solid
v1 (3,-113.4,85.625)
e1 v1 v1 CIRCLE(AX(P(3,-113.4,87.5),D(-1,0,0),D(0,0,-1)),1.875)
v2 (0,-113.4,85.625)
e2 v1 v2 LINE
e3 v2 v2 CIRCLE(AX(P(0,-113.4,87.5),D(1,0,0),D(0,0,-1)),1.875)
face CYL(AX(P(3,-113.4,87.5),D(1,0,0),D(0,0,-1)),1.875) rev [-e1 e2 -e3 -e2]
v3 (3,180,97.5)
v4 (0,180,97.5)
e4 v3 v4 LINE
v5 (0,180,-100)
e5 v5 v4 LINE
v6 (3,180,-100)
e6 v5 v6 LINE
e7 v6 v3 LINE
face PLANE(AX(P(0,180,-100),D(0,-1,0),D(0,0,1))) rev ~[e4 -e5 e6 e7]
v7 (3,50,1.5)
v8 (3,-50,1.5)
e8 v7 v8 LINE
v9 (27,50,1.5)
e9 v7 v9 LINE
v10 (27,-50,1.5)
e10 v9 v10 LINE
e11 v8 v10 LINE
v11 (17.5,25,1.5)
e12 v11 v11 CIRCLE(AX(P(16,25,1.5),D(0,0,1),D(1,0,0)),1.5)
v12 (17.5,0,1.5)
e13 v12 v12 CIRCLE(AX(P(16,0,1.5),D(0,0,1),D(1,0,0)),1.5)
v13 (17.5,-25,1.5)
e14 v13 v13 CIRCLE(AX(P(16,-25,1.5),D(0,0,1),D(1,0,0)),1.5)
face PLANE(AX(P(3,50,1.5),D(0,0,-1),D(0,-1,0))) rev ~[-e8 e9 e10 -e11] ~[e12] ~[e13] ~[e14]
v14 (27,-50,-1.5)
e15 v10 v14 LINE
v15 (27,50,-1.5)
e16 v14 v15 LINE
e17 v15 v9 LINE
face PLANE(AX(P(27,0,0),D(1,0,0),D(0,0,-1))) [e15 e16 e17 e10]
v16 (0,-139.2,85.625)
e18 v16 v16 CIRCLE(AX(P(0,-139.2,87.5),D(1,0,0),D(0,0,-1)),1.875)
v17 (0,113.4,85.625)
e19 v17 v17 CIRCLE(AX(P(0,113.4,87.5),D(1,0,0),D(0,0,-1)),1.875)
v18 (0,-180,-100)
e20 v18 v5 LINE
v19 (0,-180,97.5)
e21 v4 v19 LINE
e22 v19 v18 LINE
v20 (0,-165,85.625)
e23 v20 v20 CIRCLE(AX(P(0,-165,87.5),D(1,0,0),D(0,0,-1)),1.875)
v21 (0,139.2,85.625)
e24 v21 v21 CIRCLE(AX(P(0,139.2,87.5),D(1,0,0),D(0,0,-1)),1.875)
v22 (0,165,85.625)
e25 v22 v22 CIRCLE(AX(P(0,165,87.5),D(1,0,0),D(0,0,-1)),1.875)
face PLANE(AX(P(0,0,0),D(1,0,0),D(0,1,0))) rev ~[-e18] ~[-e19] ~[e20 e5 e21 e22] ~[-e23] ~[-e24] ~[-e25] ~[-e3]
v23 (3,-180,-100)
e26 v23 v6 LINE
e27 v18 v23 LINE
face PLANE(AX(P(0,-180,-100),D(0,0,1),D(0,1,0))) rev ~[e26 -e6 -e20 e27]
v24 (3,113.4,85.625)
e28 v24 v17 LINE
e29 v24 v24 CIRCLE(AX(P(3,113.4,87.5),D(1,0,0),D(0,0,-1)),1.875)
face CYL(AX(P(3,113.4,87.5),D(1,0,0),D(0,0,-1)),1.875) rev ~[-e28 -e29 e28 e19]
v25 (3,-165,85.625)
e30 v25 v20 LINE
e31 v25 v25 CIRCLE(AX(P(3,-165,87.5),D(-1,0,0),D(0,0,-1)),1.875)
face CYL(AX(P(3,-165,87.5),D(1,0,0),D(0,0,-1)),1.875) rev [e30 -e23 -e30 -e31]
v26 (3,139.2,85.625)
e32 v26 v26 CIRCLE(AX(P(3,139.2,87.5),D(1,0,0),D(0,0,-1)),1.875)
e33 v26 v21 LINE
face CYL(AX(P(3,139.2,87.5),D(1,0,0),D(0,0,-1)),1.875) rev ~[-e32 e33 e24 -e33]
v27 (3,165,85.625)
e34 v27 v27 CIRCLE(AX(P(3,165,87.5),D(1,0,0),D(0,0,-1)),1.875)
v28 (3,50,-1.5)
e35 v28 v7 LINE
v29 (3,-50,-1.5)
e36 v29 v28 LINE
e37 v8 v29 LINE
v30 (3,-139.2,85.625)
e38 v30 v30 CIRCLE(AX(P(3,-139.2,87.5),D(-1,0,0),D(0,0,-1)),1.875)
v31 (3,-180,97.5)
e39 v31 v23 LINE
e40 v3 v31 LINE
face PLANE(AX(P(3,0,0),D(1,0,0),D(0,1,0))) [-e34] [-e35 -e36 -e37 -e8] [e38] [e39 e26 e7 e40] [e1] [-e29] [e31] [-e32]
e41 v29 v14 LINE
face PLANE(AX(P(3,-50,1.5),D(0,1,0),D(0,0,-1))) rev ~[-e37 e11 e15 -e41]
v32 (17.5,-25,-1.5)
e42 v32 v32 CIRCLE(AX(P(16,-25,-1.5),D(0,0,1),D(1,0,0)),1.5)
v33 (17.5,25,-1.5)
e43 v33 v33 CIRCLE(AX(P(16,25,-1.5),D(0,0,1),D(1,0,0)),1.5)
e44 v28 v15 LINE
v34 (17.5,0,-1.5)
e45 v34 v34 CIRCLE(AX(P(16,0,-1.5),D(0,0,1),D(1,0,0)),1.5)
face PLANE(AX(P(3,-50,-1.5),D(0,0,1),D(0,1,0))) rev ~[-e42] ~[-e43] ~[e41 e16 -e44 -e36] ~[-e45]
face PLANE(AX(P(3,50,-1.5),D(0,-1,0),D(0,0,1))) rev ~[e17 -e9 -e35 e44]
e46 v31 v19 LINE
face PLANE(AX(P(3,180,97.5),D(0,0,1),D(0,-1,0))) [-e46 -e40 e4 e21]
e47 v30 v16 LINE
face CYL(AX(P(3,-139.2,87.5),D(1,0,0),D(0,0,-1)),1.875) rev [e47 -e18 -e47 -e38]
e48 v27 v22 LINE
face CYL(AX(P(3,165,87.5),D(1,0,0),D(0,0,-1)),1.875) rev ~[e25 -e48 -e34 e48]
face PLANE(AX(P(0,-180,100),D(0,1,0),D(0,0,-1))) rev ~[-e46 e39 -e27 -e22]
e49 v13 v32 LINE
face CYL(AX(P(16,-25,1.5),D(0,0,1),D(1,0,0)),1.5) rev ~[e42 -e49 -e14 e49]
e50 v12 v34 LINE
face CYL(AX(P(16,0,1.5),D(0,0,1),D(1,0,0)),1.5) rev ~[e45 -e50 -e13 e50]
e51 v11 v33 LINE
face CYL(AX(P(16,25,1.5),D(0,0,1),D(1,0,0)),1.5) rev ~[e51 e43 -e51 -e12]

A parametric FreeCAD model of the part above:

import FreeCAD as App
import Part
import Sketcher
from FreeCAD import Vector
Q = App.Units.Quantity

doc = App.newDocument("Part")
params = doc.addObject("Spreadsheet::Sheet", "Params")
for row, (alias, value) in enumerate([
    ("sketch1_width", "360 mm"),
    ("sketch1_height", "200 mm"),
    ("pad1_length", "3 mm"),
    ("sketch2_width", "100 mm"),
    ("sketch2_height", "3 mm"),
    ("pad2_length", "24 mm"),
    ("sketch3_diameter", "3 mm"),
    ("pocket1_length", "25 mm"),
    ("sketch4_diameter", "3.75 mm"),
    ("pocket2_length", "10 mm"),
    ("sketch5_height", "2.5 mm"),
    ("sketch5_width", "360 mm"),
    ("pocket3_length", "10 mm"),
], start=1):
    params.set(f"A{row}", alias)
    params.set(f"B{row}", "=" + value)
    params.setAlias(f"B{row}", alias)

body = doc.addObject("PartDesign::Body", "Body")

# Sketch on YZ plane
sketch1 = body.newObject("Sketcher::SketchObject", "Sketch")
sketch1.AttachmentSupport = (doc.getObject("YZ_Plane"), [""])
sketch1.MapMode = "FlatFace"
sketch1.addGeometry([
    Part.LineSegment(Vector(180, -100, 0), Vector(180, 100, 0)),
    Part.LineSegment(Vector(180, 100, 0), Vector(-180, 100, 0)),
    Part.LineSegment(Vector(-180, 100, 0), Vector(-180, -100, 0)),
    Part.LineSegment(Vector(-180, -100, 0), Vector(180, -100, 0)),
], False)
sketch1.addConstraint([
    Sketcher.Constraint("Coincident", 0, 2, 1, 1),
    Sketcher.Constraint("Coincident", 1, 2, 2, 1),
    Sketcher.Constraint("Coincident", 2, 2, 3, 1),
    Sketcher.Constraint("Coincident", 3, 2, 0, 1),
    Sketcher.Constraint("Vertical", 0),
    Sketcher.Constraint("Horizontal", 1),
    Sketcher.Constraint("Vertical", 2),
    Sketcher.Constraint("Horizontal", 3),
    Sketcher.Constraint("Symmetric", 0, 2, 2, 2, -1, 1),
    Sketcher.Constraint("DistanceX", 1, 2, 1, 1, Q("360 mm")),
    Sketcher.Constraint("DistanceY", 0, 1, 0, 2, Q("200 mm")),
])
sketch1.setExpression("Constraints[9]", "Params.sketch1_width")
sketch1.setExpression("Constraints[10]", "Params.sketch1_height")
pad1 = body.newObject("PartDesign::Pad", "Pad")
pad1.Profile = sketch1
pad1.setExpression("Length", "Params.pad1_length")

# Sketch on YZ plane
sketch2 = body.newObject("Sketcher::SketchObject", "Sketch001")
sketch2.AttachmentSupport = (doc.getObject("YZ_Plane"), [""])
sketch2.MapMode = "FlatFace"
sketch2.AttachmentOffset = App.Placement(Vector(0, 0, 3), App.Rotation())
sketch2.addGeometry([
    Part.LineSegment(Vector(-50, -1.5, 0), Vector(50, -1.5, 0)),
    Part.LineSegment(Vector(50, -1.5, 0), Vector(50, 1.5, 0)),
    Part.LineSegment(Vector(50, 1.5, 0), Vector(-50, 1.5, 0)),
    Part.LineSegment(Vector(-50, 1.5, 0), Vector(-50, -1.5, 0)),
], False)
sketch2.addConstraint([
    Sketcher.Constraint("Coincident", 0, 2, 1, 1),
    Sketcher.Constraint("Coincident", 1, 2, 2, 1),
    Sketcher.Constraint("Coincident", 2, 2, 3, 1),
    Sketcher.Constraint("Coincident", 3, 2, 0, 1),
    Sketcher.Constraint("Horizontal", 0),
    Sketcher.Constraint("Vertical", 1),
    Sketcher.Constraint("Horizontal", 2),
    Sketcher.Constraint("Vertical", 3),
    Sketcher.Constraint("Symmetric", 0, 2, 2, 2, -1, 1),
    Sketcher.Constraint("DistanceX", 0, 1, 0, 2, Q("100 mm")),
    Sketcher.Constraint("DistanceY", 1, 1, 1, 2, Q("3 mm")),
])
sketch2.setExpression("Constraints[9]", "Params.sketch2_width")
sketch2.setExpression("Constraints[10]", "Params.sketch2_height")
pad2 = body.newObject("PartDesign::Pad", "Pad001")
pad2.Profile = sketch2
pad2.setExpression("Length", "Params.pad2_length")

# Sketch on XY plane
sketch3 = body.newObject("Sketcher::SketchObject", "Sketch002")
sketch3.AttachmentSupport = (doc.getObject("XY_Plane"), [""])
sketch3.MapMode = "FlatFace"
sketch3.AttachmentOffset = App.Placement(Vector(0, 0, 1.5), App.Rotation())
sketch3.addGeometry([
    Part.Circle(Vector(16, 25, 0), Vector(0, 0, 1), 1.5),
    Part.Circle(Vector(16, 0, 0), Vector(0, 0, 1), 1.5),
    Part.Circle(Vector(16, -25, 0), Vector(0, 0, 1), 1.5),
], False)
sketch3.addConstraint([
    Sketcher.Constraint("Equal", 0, 1),
    Sketcher.Constraint("Equal", 1, 2),
    Sketcher.Constraint("Symmetric", 0, 3, 2, 3, -1),
    Sketcher.Constraint("PointOnObject", 1, 3, -1),
    Sketcher.Constraint("Vertical", 0, 3, 1, 3),
    Sketcher.Constraint("Diameter", 0, Q("3 mm")),
    Sketcher.Constraint("DistanceY", -1, 1, 0, 3, Q("25 mm")),
    Sketcher.Constraint("DistanceX", -1, 1, 0, 3, Q("16 mm")),
])
sketch3.setExpression("Constraints[5]", "Params.sketch3_diameter")
pocket1 = body.newObject("PartDesign::Pocket", "Pocket")
pocket1.Profile = sketch3
pocket1.setExpression("Length", "Params.pocket1_length")

# Sketch on YZ plane
sketch4 = body.newObject("Sketcher::SketchObject", "Sketch003")
sketch4.AttachmentSupport = (doc.getObject("YZ_Plane"), [""])
sketch4.MapMode = "FlatFace"
sketch4.AttachmentOffset = App.Placement(Vector(0, 0, 3), App.Rotation())
sketch4.addGeometry([
    Part.Circle(Vector(165, 87.5, 0), Vector(0, 0, 1), 1.9),
    Part.Circle(Vector(139.2, 87.5, 0), Vector(0, 0, 1), 1.9),
    Part.Circle(Vector(113.4, 87.5, 0), Vector(0, 0, 1), 1.9),
], False)
sketch4.addConstraint([
    Sketcher.Constraint("Equal", 0, 1),
    Sketcher.Constraint("Equal", 1, 2),
    Sketcher.Constraint("Horizontal", 0, 3, 1, 3),
    Sketcher.Constraint("Horizontal", 1, 3, 2, 3),
    Sketcher.Constraint("Diameter", 0, Q("3.75 mm")),
    Sketcher.Constraint("DistanceX", 1, 3, 0, 3, Q("25.8 mm")),
    Sketcher.Constraint("DistanceX", 2, 3, 1, 3, Q("25.8 mm")),
    Sketcher.Constraint("DistanceX", -1, 1, 0, 3, Q("165 mm")),
    Sketcher.Constraint("DistanceY", -1, 1, 0, 3, Q("87.5 mm")),
])
sketch4.setExpression("Constraints[4]", "Params.sketch4_diameter")
pocket2 = body.newObject("PartDesign::Pocket", "Pocket001")
pocket2.Profile = sketch4
pocket2.setExpression("Length", "Params.pocket2_length")
doc.recompute()

mirrored = body.newObject("PartDesign::Mirrored", "Mirrored")
mirrored.Originals = [pocket2]
mirrored.MirrorPlane = (doc.getObject("XZ_Plane"), [""])
body.Tip = mirrored

# Sketch on YZ plane
sketch5 = body.newObject("Sketcher::SketchObject", "Sketch004")
sketch5.AttachmentSupport = (doc.getObject("YZ_Plane"), [""])
sketch5.MapMode = "FlatFace"
sketch5.AttachmentOffset = App.Placement(Vector(0, 0, 3), App.Rotation())
sketch5.addGeometry([
    Part.LineSegment(Vector(-180, 97.5, 0), Vector(180, 97.5, 0)),
    Part.LineSegment(Vector(180, 97.5, 0), Vector(180, 100, 0)),
    Part.LineSegment(Vector(180, 100, 0), Vector(-180, 100, 0)),
    Part.LineSegment(Vector(-180, 100, 0), Vector(-180, 97.5, 0)),
], False)
sketch5.addConstraint([
    Sketcher.Constraint("Coincident", 0, 2, 1, 1),
    Sketcher.Constraint("Coincident", 1, 2, 2, 1),
    Sketcher.Constraint("Coincident", 2, 2, 3, 1),
    Sketcher.Constraint("Coincident", 3, 2, 0, 1),
    Sketcher.Constraint("Horizontal", 0),
    Sketcher.Constraint("Vertical", 1),
    Sketcher.Constraint("Horizontal", 2),
    Sketcher.Constraint("Vertical", 3),
    Sketcher.Constraint("DistanceY", 1, 1, 1, 2, Q("2.5 mm")),
    Sketcher.Constraint("DistanceX", 0, 1, 0, 2, Q("360 mm")),
    Sketcher.Constraint("DistanceX", -1, 1, 0, 2, Q("180 mm")),
    Sketcher.Constraint("DistanceY", -1, 1, 1, 2, Q("100 mm")),
])
sketch5.setExpression("Constraints[8]", "Params.sketch5_height")
sketch5.setExpression("Constraints[9]", "Params.sketch5_width")
pocket3 = body.newObject("PartDesign::Pocket", "Pocket002")
pocket3.Profile = sketch5
pocket3.setExpression("Length", "Params.pocket3_length")

doc.recompute()
